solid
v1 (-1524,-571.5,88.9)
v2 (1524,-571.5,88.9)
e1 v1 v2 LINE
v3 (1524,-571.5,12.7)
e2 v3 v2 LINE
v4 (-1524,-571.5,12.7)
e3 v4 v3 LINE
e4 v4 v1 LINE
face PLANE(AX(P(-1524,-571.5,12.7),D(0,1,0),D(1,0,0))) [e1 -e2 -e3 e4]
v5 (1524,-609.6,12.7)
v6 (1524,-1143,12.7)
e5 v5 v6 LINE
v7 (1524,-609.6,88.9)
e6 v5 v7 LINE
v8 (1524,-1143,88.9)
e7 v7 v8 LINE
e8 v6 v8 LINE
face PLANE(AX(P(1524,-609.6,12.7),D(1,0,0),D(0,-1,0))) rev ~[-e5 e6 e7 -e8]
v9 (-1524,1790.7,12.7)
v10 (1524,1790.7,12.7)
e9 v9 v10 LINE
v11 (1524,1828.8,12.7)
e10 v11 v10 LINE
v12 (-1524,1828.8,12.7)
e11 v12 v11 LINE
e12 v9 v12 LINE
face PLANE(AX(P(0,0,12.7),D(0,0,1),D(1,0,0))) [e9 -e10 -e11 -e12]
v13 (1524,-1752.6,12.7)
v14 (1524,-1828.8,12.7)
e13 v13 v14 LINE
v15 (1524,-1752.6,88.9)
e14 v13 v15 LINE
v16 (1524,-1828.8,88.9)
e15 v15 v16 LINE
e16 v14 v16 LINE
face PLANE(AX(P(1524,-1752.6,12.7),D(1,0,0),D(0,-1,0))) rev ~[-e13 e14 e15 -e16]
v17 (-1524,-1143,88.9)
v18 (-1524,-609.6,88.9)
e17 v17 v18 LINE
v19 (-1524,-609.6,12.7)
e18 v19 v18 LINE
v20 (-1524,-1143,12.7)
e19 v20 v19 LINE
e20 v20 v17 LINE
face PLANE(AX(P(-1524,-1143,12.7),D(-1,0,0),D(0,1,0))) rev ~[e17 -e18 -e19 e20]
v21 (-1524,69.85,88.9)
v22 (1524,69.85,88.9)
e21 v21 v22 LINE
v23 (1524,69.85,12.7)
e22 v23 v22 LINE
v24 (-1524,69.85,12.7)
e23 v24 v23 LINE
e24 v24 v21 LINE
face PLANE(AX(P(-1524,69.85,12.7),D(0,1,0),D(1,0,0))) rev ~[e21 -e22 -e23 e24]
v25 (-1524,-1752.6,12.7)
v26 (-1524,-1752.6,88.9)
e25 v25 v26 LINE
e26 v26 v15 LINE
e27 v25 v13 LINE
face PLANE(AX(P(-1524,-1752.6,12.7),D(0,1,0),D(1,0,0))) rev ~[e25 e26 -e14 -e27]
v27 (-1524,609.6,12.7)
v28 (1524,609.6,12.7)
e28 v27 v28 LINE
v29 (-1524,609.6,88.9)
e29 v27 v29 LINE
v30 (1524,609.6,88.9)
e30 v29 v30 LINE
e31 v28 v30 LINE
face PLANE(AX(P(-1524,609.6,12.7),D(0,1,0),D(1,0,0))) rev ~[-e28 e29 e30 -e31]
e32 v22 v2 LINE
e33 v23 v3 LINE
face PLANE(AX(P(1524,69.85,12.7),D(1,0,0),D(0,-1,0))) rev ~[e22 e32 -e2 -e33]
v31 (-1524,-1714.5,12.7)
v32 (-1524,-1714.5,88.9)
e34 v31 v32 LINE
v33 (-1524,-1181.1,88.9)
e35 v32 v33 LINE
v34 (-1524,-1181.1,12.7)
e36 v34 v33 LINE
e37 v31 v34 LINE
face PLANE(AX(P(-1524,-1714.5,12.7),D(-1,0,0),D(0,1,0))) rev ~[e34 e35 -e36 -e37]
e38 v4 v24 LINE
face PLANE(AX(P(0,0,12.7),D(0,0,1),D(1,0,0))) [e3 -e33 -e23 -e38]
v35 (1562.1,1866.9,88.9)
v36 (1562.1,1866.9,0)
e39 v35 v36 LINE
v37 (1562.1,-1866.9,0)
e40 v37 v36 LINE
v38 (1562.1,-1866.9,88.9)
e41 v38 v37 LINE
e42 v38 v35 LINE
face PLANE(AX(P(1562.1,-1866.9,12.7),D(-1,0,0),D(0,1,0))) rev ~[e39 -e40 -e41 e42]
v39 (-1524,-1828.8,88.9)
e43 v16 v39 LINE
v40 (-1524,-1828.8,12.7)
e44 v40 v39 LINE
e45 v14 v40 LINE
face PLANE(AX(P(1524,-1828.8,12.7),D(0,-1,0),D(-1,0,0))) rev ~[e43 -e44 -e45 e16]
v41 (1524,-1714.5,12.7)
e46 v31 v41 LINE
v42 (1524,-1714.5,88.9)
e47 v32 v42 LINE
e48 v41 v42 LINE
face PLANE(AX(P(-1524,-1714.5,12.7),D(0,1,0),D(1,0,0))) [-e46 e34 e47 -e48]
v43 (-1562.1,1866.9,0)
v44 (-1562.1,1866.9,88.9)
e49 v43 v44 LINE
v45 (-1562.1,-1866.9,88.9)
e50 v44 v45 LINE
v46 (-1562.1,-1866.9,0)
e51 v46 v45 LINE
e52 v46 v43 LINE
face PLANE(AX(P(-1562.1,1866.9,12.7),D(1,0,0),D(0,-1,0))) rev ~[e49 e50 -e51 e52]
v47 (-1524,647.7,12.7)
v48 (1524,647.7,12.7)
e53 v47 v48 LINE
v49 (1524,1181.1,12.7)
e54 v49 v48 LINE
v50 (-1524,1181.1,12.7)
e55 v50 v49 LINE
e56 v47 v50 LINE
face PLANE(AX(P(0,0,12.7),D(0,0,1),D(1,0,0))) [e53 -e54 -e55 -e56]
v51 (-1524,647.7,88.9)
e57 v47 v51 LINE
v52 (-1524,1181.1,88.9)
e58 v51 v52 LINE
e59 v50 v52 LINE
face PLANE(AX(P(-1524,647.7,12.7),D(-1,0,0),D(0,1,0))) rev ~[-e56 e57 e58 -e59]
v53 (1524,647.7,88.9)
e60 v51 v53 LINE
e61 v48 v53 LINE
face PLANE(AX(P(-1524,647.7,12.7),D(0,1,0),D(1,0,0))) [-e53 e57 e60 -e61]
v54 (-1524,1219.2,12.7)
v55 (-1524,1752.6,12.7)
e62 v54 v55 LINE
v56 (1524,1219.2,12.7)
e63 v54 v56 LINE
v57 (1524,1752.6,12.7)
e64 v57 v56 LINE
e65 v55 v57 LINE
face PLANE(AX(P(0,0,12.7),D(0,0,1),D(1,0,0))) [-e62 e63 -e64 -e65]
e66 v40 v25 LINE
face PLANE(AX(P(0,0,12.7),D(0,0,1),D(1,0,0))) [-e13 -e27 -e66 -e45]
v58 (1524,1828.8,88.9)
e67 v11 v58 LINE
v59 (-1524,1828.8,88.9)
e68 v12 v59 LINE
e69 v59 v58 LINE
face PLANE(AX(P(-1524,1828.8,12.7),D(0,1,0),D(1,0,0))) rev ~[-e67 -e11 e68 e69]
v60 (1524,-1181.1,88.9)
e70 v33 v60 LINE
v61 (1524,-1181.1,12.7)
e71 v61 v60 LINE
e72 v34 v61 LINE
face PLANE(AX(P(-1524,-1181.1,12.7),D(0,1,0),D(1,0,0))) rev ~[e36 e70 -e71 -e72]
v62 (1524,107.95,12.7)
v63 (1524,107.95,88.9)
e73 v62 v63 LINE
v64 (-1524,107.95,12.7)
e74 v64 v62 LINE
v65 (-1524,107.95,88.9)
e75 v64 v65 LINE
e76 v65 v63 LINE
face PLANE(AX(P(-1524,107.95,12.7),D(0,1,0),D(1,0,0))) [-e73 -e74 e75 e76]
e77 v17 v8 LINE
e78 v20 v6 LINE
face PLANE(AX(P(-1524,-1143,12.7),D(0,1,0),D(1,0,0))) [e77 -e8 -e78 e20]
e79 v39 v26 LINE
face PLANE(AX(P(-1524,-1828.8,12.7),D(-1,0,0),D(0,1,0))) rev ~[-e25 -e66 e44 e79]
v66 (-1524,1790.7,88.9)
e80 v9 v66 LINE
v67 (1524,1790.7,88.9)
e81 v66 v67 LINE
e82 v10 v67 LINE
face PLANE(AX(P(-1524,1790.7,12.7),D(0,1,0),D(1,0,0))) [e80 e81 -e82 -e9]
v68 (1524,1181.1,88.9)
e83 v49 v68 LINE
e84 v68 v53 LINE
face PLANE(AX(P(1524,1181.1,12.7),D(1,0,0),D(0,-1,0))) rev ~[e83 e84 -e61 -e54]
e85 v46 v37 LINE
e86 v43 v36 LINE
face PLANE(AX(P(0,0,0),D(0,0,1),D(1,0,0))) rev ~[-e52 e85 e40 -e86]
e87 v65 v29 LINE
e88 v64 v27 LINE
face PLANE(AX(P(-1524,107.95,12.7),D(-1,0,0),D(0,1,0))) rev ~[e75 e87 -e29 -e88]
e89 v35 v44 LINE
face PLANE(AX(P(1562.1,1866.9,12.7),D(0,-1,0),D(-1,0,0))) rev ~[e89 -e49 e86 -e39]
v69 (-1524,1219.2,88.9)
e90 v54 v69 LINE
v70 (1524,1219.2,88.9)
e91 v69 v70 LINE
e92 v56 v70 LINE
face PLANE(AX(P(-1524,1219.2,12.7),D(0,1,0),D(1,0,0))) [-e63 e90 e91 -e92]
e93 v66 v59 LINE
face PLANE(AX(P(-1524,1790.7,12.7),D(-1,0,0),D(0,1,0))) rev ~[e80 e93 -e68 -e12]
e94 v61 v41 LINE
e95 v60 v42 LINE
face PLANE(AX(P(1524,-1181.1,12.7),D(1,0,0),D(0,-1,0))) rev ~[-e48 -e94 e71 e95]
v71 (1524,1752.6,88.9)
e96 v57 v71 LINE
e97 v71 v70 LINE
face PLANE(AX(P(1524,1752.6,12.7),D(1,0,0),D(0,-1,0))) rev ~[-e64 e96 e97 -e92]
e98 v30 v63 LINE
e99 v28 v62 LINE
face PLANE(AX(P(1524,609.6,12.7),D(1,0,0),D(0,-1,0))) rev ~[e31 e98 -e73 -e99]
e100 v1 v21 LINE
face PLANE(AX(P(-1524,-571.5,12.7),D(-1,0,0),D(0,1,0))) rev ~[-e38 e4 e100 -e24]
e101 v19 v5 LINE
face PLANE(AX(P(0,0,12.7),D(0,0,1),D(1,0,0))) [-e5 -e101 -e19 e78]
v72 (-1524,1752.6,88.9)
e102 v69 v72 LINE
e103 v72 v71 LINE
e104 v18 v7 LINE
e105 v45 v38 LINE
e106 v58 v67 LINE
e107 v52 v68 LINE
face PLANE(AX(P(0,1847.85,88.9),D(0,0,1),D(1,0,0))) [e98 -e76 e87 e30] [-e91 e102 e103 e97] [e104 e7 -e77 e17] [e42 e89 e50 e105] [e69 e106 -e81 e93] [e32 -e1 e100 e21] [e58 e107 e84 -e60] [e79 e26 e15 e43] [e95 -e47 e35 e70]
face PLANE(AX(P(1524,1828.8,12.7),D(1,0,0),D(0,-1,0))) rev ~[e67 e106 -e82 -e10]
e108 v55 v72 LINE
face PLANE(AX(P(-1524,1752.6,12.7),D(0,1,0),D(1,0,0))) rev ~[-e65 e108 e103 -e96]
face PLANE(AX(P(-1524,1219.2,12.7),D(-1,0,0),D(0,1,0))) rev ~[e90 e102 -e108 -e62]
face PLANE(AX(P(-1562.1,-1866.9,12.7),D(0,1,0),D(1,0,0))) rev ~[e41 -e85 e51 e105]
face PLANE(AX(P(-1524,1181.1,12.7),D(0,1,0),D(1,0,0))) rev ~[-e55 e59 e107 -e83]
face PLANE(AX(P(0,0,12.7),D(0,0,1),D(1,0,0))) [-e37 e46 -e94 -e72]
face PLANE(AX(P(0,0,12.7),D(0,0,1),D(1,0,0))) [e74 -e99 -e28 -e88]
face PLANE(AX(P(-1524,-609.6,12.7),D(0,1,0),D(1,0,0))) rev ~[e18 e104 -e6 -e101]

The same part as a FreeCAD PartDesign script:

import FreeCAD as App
import Part
import Sketcher
Q = App.Units.Quantity


def add_polygon(sketch, points):
    """Adds a closed chain of lines whose ends are joined by coincident constraints."""
    first, n = sketch.GeometryCount, len(points)
    for a, b in zip(points, points[1:] + points[:1]):
        sketch.addGeometry(Part.LineSegment(App.Vector(*a, 0), App.Vector(*b, 0)), False)
    for i in range(n):
        sketch.addConstraint(Sketcher.Constraint("Coincident", first + i, 2, first + (i + 1) % n, 1))

doc = App.newDocument("Part")
body = doc.addObject("PartDesign::Body", "Body")

sketch1 = doc.addObject("Sketcher::SketchObject", "Sketch")
body.addObject(sketch1)
sketch1.AttachmentSupport = (doc.XY_Plane, [""])
sketch1.MapMode = "FlatFace"
add_polygon(sketch1, [(-1562, 1867), (-1562, -1867), (1562, -1867), (1562, 1867)])
sketch1.addConstraint(Sketcher.Constraint("Vertical", 0))
sketch1.addConstraint(Sketcher.Constraint("Horizontal", 1))
sketch1.addConstraint(Sketcher.Constraint("Vertical", 2))
sketch1.addConstraint(Sketcher.Constraint("Horizontal", 3))
sketch1.addConstraint(Sketcher.Constraint("Symmetric", 0, 2, 2, 2, -1, 1))
sketch1.addConstraint(Sketcher.Constraint("DistanceX", 1, 1, 1, 2, Q("123 in")))
sketch1.addConstraint(Sketcher.Constraint("DistanceY", 0, 2, 0, 1, Q("147 in")))
pad1 = doc.addObject("PartDesign::Pad", "Pad")
body.addObject(pad1)
pad1.Profile = sketch1
pad1.Length = Q("0.5 in")

sketch2 = doc.addObject("Sketcher::SketchObject", "Sketch001")
body.addObject(sketch2)
sketch2.AttachmentSupport = (doc.XY_Plane, [""])
sketch2.MapMode = "FlatFace"
sketch2.AttachmentOffset = App.Placement(App.Vector(0, 0, 0.5 * 25.4), App.Rotation())
add_polygon(sketch2, [(1562, 1867), (-1562, 1867), (-1562, -1867), (1562, -1867)])
add_polygon(sketch2, [(-1524, -1829), (-1524, -1753), (1524, -1753), (1524, -1829)])
add_polygon(sketch2, [(-1524, -1714), (-1524, -1181), (1524, -1181), (1524, -1714)])
add_polygon(sketch2, [(-1524, -1143), (-1524, -610), (1524, -610), (1524, -1143)])
add_polygon(sketch2, [(-1524, -572), (-1524, 70), (1524, 70), (1524, -572)])
add_polygon(sketch2, [(-1524, 108), (-1524, 610), (1524, 610), (1524, 108)])
add_polygon(sketch2, [(-1524, 648), (-1524, 1181), (1524, 1181), (1524, 648)])
add_polygon(sketch2, [(-1524, 1219), (-1524, 1753), (1524, 1753), (1524, 1219)])
add_polygon(sketch2, [(-1524, 1791), (-1524, 1829), (1524, 1829), (1524, 1791)])
sketch2.addConstraint(Sketcher.Constraint("Horizontal", 0))
sketch2.addConstraint(Sketcher.Constraint("Vertical", 1))
sketch2.addConstraint(Sketcher.Constraint("Horizontal", 2))
sketch2.addConstraint(Sketcher.Constraint("Vertical", 3))
sketch2.addConstraint(Sketcher.Constraint("Vertical", 4))
sketch2.addConstraint(Sketcher.Constraint("Horizontal", 5))
sketch2.addConstraint(Sketcher.Constraint("Vertical", 6))
sketch2.addConstraint(Sketcher.Constraint("Horizontal", 7))
sketch2.addConstraint(Sketcher.Constraint("Vertical", 8))
sketch2.addConstraint(Sketcher.Constraint("Horizontal", 9))
sketch2.addConstraint(Sketcher.Constraint("Vertical", 10))
sketch2.addConstraint(Sketcher.Constraint("Horizontal", 11))
sketch2.addConstraint(Sketcher.Constraint("Vertical", 12))
sketch2.addConstraint(Sketcher.Constraint("Horizontal", 13))
sketch2.addConstraint(Sketcher.Constraint("Vertical", 14))
sketch2.addConstraint(Sketcher.Constraint("Horizontal", 15))
sketch2.addConstraint(Sketcher.Constraint("Vertical", 16))
sketch2.addConstraint(Sketcher.Constraint("Horizontal", 17))
sketch2.addConstraint(Sketcher.Constraint("Vertical", 18))
sketch2.addConstraint(Sketcher.Constraint("Horizontal", 19))
sketch2.addConstraint(Sketcher.Constraint("Vertical", 20))
sketch2.addConstraint(Sketcher.Constraint("Horizontal", 21))
sketch2.addConstraint(Sketcher.Constraint("Vertical", 22))
sketch2.addConstraint(Sketcher.Constraint("Horizontal", 23))
sketch2.addConstraint(Sketcher.Constraint("Vertical", 24))
sketch2.addConstraint(Sketcher.Constraint("Horizontal", 25))
sketch2.addConstraint(Sketcher.Constraint("Vertical", 26))
sketch2.addConstraint(Sketcher.Constraint("Horizontal", 27))
sketch2.addConstraint(Sketcher.Constraint("Vertical", 28))
sketch2.addConstraint(Sketcher.Constraint("Horizontal", 29))
sketch2.addConstraint(Sketcher.Constraint("Vertical", 30))
sketch2.addConstraint(Sketcher.Constraint("Horizontal", 31))
sketch2.addConstraint(Sketcher.Constraint("Vertical", 32))
sketch2.addConstraint(Sketcher.Constraint("Horizontal", 33))
sketch2.addConstraint(Sketcher.Constraint("Vertical", 34))
sketch2.addConstraint(Sketcher.Constraint("Horizontal", 35))
sketch2.addConstraint(Sketcher.Constraint("Symmetric", 0, 2, 2, 2, -1, 1))
sketch2.addConstraint(Sketcher.Constraint("Symmetric", 13, 2, 20, 2, -1, 1))
sketch2.addConstraint(Sketcher.Constraint("Symmetric", 9, 2, 24, 2, -1, 1))
sketch2.addConstraint(Sketcher.Constraint("Symmetric", 5, 2, 28, 2, -1, 1))
sketch2.addConstraint(Sketcher.Constraint("Symmetric", 6, 2, 32, 2, -1, 1))
sketch2.addConstraint(Sketcher.Constraint("Vertical", 7, 2, 8, 2))
sketch2.addConstraint(Sketcher.Constraint("Vertical", 6, 2, 9, 2))
sketch2.addConstraint(Sketcher.Constraint("Vertical", 11, 2, 12, 2))
sketch2.addConstraint(Sketcher.Constraint("Vertical", 10, 2, 13, 2))
sketch2.addConstraint(Sketcher.Constraint("Vertical", 15, 2, 16, 2))
sketch2.addConstraint(Sketcher.Constraint("Vertical", 14, 2, 17, 2))
sketch2.addConstraint(Sketcher.Constraint("Vertical", 19, 2, 20, 2))
sketch2.addConstraint(Sketcher.Constraint("Vertical", 18, 2, 21, 2))
sketch2.addConstraint(Sketcher.Constraint("Vertical", 22, 2, 25, 2))
sketch2.addConstraint(Sketcher.Constraint("Vertical", 26, 2, 29, 2))
sketch2.addConstraint(Sketcher.Constraint("Vertical", 30, 2, 33, 2))
sketch2.addConstraint(Sketcher.Constraint("Equal", 10, 12))
sketch2.addConstraint(Sketcher.Constraint("Equal", 14, 24))
sketch2.addConstraint(Sketcher.Constraint("Equal", 26, 28))
sketch2.addConstraint(Sketcher.Constraint("DistanceX", 0, 2, 0, 1, Q("123 in")))
sketch2.addConstraint(Sketcher.Constraint("DistanceX", 5, 1, 5, 2, Q("120 in")))
sketch2.addConstraint(Sketcher.Constraint("DistanceY", 1, 2, 1, 1, Q("147 in")))
sketch2.addConstraint(Sketcher.Constraint("DistanceY", 4, 1, 4, 2, Q("3 in")))
sketch2.addConstraint(Sketcher.Constraint("DistanceY", 8, 1, 8, 2, Q("21 in")))
sketch2.addConstraint(Sketcher.Constraint("DistanceY", 32, 1, 32, 2, Q("1.5 in")))
sketch2.addConstraint(Sketcher.Constraint("DistanceY", 4, 2, -1, 1, Q("69 in")))
sketch2.addConstraint(Sketcher.Constraint("DistanceY", 12, 2, -1, 1, Q("24 in")))
sketch2.addConstraint(Sketcher.Constraint("DistanceY", 1, 2, 8, 2, Q("27 in")))
sketch2.addConstraint(Sketcher.Constraint("DistanceY", 9, 2, 18, 2, Q("24 in")))
sketch2.addConstraint(Sketcher.Constraint("DistanceY", 16, 1, 16, 2, Q("25.25 in")))
sketch2.addConstraint(Sketcher.Constraint("DistanceY", 20, 1, 20, 2, Q("19.75 in")))
pad2 = doc.addObject("PartDesign::Pad", "Pad001")
body.addObject(pad2)
pad2.Profile = sketch2
pad2.Length = Q("3 in")

doc.recompute()
